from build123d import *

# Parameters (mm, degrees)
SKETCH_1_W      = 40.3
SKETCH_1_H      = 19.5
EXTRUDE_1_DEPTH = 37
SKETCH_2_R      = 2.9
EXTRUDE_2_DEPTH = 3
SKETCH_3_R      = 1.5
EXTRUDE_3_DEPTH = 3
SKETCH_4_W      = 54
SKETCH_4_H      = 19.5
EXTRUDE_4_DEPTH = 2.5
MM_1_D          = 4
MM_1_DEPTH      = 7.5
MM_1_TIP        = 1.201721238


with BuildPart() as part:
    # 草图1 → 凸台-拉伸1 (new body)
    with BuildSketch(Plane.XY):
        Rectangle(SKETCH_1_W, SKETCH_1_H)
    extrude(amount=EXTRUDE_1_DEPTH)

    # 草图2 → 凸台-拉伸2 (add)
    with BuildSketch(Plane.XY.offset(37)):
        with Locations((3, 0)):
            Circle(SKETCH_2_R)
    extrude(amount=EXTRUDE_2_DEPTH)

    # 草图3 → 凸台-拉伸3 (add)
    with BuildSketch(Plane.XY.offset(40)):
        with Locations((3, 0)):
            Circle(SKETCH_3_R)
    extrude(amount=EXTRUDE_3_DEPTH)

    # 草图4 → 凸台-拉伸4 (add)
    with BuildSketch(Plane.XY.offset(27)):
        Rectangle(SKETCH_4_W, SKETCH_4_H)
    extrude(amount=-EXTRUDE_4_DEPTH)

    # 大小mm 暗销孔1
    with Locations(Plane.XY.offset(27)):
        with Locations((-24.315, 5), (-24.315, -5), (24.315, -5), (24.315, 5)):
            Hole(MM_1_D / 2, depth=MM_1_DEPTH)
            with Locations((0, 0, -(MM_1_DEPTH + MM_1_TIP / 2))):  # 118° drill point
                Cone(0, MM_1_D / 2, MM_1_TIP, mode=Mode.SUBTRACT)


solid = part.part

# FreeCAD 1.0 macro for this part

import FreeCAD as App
import Part
import Sketcher
Q = App.Units.Quantity

doc = App.newDocument("Part")
body = doc.addObject("PartDesign::Body", "Body")

sketch1 = body.newObject("Sketcher::SketchObject", "Sketch")
sketch1.AttachmentSupport = (doc.getObject("XY_Plane"), [""])
sketch1.MapMode = "FlatFace"
sketch1.addGeometry(Part.LineSegment(App.Vector(-20, 10, 0), App.Vector(-20, -10, 0)), False)
sketch1.addGeometry(Part.LineSegment(App.Vector(-20, -10, 0), App.Vector(20, -10, 0)), False)
sketch1.addGeometry(Part.LineSegment(App.Vector(20, -10, 0), App.Vector(20, 10, 0)), False)
sketch1.addGeometry(Part.LineSegment(App.Vector(20, 10, 0), App.Vector(-20, 10, 0)), False)
sketch1.addConstraint(Sketcher.Constraint("Coincident", 0, 2, 1, 1))
sketch1.addConstraint(Sketcher.Constraint("Coincident", 1, 2, 2, 1))
sketch1.addConstraint(Sketcher.Constraint("Coincident", 2, 2, 3, 1))
sketch1.addConstraint(Sketcher.Constraint("Coincident", 3, 2, 0, 1))
sketch1.addConstraint(Sketcher.Constraint("Vertical", 0))
sketch1.addConstraint(Sketcher.Constraint("Horizontal", 1))
sketch1.addConstraint(Sketcher.Constraint("Vertical", 2))
sketch1.addConstraint(Sketcher.Constraint("Horizontal", 3))
sketch1.addConstraint(Sketcher.Constraint("Symmetric", 0, 2, 2, 2, -1, 1))
sketch1.addConstraint(Sketcher.Constraint("DistanceX", 1, 1, 1, 2, Q("40.3 mm")))
sketch1.addConstraint(Sketcher.Constraint("DistanceY", 0, 2, 0, 1, Q("19.5 mm")))
pad1 = body.newObject("PartDesign::Pad", "Pad")
pad1.Profile = sketch1
pad1.Length = 37

sketch2 = body.newObject("Sketcher::SketchObject", "Sketch001")
sketch2.AttachmentSupport = (doc.getObject("XY_Plane"), [""])
sketch2.MapMode = "FlatFace"
sketch2.AttachmentOffset = App.Placement(App.Vector(0, 0, 37), App.Rotation())
sketch2.addGeometry(Part.Circle(App.Vector(3, 0, 0), App.Vector(0, 0, 1), 2.9), False)
sketch2.addConstraint(Sketcher.Constraint("PointOnObject", 0, 3, -1))
sketch2.addConstraint(Sketcher.Constraint("Diameter", 0, Q("5.8 mm")))
sketch2.addConstraint(Sketcher.Constraint("DistanceX", -1, 1, 0, 3, Q("3 mm")))
pad2 = body.newObject("PartDesign::Pad", "Pad001")
pad2.Profile = sketch2
pad2.Length = 3

sketch3 = body.newObject("Sketcher::SketchObject", "Sketch002")
sketch3.AttachmentSupport = (doc.getObject("XY_Plane"), [""])
sketch3.MapMode = "FlatFace"
sketch3.AttachmentOffset = App.Placement(App.Vector(0, 0, 40), App.Rotation())
sketch3.addGeometry(Part.Circle(App.Vector(3, 0, 0), App.Vector(0, 0, 1), 1.5), False)
sketch3.addConstraint(Sketcher.Constraint("PointOnObject", 0, 3, -1))
sketch3.addConstraint(Sketcher.Constraint("Diameter", 0, Q("3 mm")))
sketch3.addConstraint(Sketcher.Constraint("DistanceX", -1, 1, 0, 3, Q("3 mm")))
pad3 = body.newObject("PartDesign::Pad", "Pad002")
pad3.Profile = sketch3
pad3.Length = 3

sketch4 = body.newObject("Sketcher::SketchObject", "Sketch003")
sketch4.AttachmentSupport = (doc.getObject("XY_Plane"), [""])
sketch4.MapMode = "FlatFace"
sketch4.AttachmentOffset = App.Placement(App.Vector(0, 0, 27), App.Rotation())
sketch4.addGeometry(Part.LineSegment(App.Vector(-27, 10, 0), App.Vector(-27, -10, 0)), False)
sketch4.addGeometry(Part.LineSegment(App.Vector(-27, -10, 0), App.Vector(27, -10, 0)), False)
sketch4.addGeometry(Part.LineSegment(App.Vector(27, -10, 0), App.Vector(27, 10, 0)), False)
sketch4.addGeometry(Part.LineSegment(App.Vector(27, 10, 0), App.Vector(-27, 10, 0)), False)
sketch4.addConstraint(Sketcher.Constraint("Coincident", 0, 2, 1, 1))
sketch4.addConstraint(Sketcher.Constraint("Coincident", 1, 2, 2, 1))
sketch4.addConstraint(Sketcher.Constraint("Coincident", 2, 2, 3, 1))
sketch4.addConstraint(Sketcher.Constraint("Coincident", 3, 2, 0, 1))
sketch4.addConstraint(Sketcher.Constraint("Vertical", 0))
sketch4.addConstraint(Sketcher.Constraint("Horizontal", 1))
sketch4.addConstraint(Sketcher.Constraint("Vertical", 2))
sketch4.addConstraint(Sketcher.Constraint("Horizontal", 3))
sketch4.addConstraint(Sketcher.Constraint("Symmetric", 0, 2, 2, 2, -1, 1))
sketch4.addConstraint(Sketcher.Constraint("DistanceX", 1, 1, 1, 2, Q("54 mm")))
sketch4.addConstraint(Sketcher.Constraint("DistanceY", 0, 2, 0, 1, Q("19.5 mm")))
pad4 = body.newObject("PartDesign::Pad", "Pad003")
pad4.Profile = sketch4
pad4.Length = 2.5
pad4.Reversed = True

sketch5 = body.newObject("Sketcher::SketchObject", "Sketch004")
sketch5.AttachmentSupport = (doc.getObject("XY_Plane"), [""])
sketch5.MapMode = "FlatFace"
sketch5.AttachmentOffset = App.Placement(App.Vector(0, 0, 27), App.Rotation())
sketch5.addGeometry(Part.Circle(App.Vector(-24.3, 5, 0), App.Vector(0, 0, 1), 2), False)
sketch5.addGeometry(Part.Circle(App.Vector(-24.3, -5, 0), App.Vector(0, 0, 1), 2), False)
sketch5.addGeometry(Part.Circle(App.Vector(24.3, -5, 0), App.Vector(0, 0, 1), 2), False)
sketch5.addGeometry(Part.Circle(App.Vector(24.3, 5, 0), App.Vector(0, 0, 1), 2), False)
sketch5.addConstraint(Sketcher.Constraint("Equal", 0, 1))
sketch5.addConstraint(Sketcher.Constraint("Equal", 1, 2))
sketch5.addConstraint(Sketcher.Constraint("Equal", 2, 3))
sketch5.addConstraint(Sketcher.Constraint("Symmetric", 0, 3, 2, 3, -1, 1))
sketch5.addConstraint(Sketcher.Constraint("Symmetric", 1, 3, 3, 3, -1, 1))
sketch5.addConstraint(Sketcher.Constraint("Symmetric", 1, 3, 2, 3, -2))
sketch5.addConstraint(Sketcher.Constraint("Diameter", 0, Q("4 mm")))
sketch5.addConstraint(Sketcher.Constraint("DistanceY", -1, 1, 0, 3, Q("5 mm")))
sketch5.addConstraint(Sketcher.Constraint("DistanceX", 1, 3, 2, 3, Q("48.63 mm")))
doc.recompute()
hole = body.newObject("PartDesign::Hole", "Hole")
hole.Profile = sketch5
hole.ThreadType = "None"
hole.Diameter = 4
hole.DepthType = "Dimension"
hole.Depth = 7.5
hole.DrillPoint = "Angled"
hole.DrillPointAngle = 118

doc.recompute()
